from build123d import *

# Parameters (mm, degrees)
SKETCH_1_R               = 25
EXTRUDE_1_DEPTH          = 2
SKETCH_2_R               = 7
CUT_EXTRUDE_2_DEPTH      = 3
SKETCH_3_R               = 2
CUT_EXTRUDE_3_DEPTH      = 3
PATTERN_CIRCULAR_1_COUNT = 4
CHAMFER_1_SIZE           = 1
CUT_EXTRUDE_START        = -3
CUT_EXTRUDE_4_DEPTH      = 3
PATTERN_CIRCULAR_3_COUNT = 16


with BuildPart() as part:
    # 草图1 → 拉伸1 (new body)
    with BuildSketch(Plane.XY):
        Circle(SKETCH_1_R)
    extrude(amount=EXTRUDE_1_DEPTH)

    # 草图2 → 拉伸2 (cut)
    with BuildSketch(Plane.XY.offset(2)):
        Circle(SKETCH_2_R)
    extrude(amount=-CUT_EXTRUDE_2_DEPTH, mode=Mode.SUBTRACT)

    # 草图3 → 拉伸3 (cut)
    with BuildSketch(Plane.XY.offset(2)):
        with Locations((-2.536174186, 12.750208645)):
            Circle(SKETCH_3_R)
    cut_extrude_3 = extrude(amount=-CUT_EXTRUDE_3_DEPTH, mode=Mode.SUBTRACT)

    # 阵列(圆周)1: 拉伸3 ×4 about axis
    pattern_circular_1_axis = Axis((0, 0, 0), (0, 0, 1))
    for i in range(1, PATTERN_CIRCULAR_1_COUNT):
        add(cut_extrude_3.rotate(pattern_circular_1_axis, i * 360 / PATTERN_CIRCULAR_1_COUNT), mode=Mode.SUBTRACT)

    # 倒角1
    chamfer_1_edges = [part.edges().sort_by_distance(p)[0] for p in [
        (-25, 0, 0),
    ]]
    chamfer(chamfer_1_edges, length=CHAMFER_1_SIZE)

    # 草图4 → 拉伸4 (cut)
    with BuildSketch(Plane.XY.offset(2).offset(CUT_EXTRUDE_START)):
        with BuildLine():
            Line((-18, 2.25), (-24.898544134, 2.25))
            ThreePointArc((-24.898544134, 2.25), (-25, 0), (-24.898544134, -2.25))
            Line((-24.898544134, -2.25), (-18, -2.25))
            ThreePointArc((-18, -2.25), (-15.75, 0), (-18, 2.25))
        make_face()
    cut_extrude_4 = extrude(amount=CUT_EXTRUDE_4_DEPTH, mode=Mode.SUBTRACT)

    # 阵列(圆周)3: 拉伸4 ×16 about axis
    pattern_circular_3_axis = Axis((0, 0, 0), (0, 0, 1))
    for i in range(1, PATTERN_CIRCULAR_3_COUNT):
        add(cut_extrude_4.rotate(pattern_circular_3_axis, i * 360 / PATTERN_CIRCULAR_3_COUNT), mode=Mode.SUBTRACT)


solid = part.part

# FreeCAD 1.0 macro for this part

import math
import FreeCAD as App
import Part
import Sketcher


def edges_at(feature, points):
    """Names of the edges that pass closest to the given points."""
    edges = feature.Shape.Edges
    near = lambda p: min(range(len(edges)), key=lambda i: edges[i].distToShape(Part.Vertex(*p))[0])
    return sorted({f"Edge{near(p) + 1}" for p in points})

doc = App.newDocument("Part")
body = doc.addObject("PartDesign::Body", "Body")

sketch1 = body.newObject("Sketcher::SketchObject", "Sketch")
sketch1.AttachmentSupport = (doc.getObject("XY_Plane"), [""])
sketch1.MapMode = "FlatFace"
sketch1.addGeometry(Part.Circle(App.Vector(0, 0, 0), App.Vector(0, 0, 1), 25), False)
sketch1.addConstraint(Sketcher.Constraint("Coincident", 0, 3, -1, 1))
sketch1.addConstraint(Sketcher.Constraint("Diameter", 0, 50.0))
pad1 = body.newObject("PartDesign::Pad", "Pad")
pad1.Profile = sketch1
pad1.Length = 2

sketch2 = body.newObject("Sketcher::SketchObject", "Sketch001")
sketch2.AttachmentSupport = (doc.getObject("XY_Plane"), [""])
sketch2.MapMode = "FlatFace"
sketch2.AttachmentOffset = App.Placement(App.Vector(0, 0, 2), App.Rotation())
sketch2.addGeometry(Part.Circle(App.Vector(0, 0, 0), App.Vector(0, 0, 1), 7), False)
sketch2.addConstraint(Sketcher.Constraint("Coincident", 0, 3, -1, 1))
sketch2.addConstraint(Sketcher.Constraint("Diameter", 0, 14.0))
pocket1 = body.newObject("PartDesign::Pocket", "Pocket")
pocket1.Profile = sketch2
pocket1.Length = 3

sketch3 = body.newObject("Sketcher::SketchObject", "Sketch002")
sketch3.AttachmentSupport = (doc.getObject("XY_Plane"), [""])
sketch3.MapMode = "FlatFace"
sketch3.AttachmentOffset = App.Placement(App.Vector(0, 0, 2), App.Rotation())
sketch3.addGeometry(Part.Circle(App.Vector(-2.5, 12.8, 0), App.Vector(0, 0, 1), 2), False)
sketch3.addConstraint(Sketcher.Constraint("Diameter", 0, 4.0))
sketch3.addConstraint(Sketcher.Constraint("DistanceY", -1, 1, 0, 3, 12.750209))
sketch3.addConstraint(Sketcher.Constraint("DistanceX", 0, 3, -1, 1, 2.536174))
pocket2 = body.newObject("PartDesign::Pocket", "Pocket001")
pocket2.Profile = sketch3
pocket2.Length = 3
doc.recompute()

polarpattern = body.newObject("PartDesign::PolarPattern", "PolarPattern")
polarpattern.Originals = [pocket2]
polarpattern.Axis = (doc.getObject("Z_Axis"), [""])
polarpattern.Angle = 360
polarpattern.Occurrences = 4
body.Tip = polarpattern
doc.recompute()

chamfer = body.newObject("PartDesign::Chamfer", "Chamfer")
chamfer.Base = (polarpattern, edges_at(polarpattern, [(-25, 0, 0)]))
chamfer.Size = 1

sketch4 = body.newObject("Sketcher::SketchObject", "Sketch003")
sketch4.AttachmentSupport = (doc.getObject("XY_Plane"), [""])
sketch4.MapMode = "FlatFace"
sketch4.AttachmentOffset = App.Placement(App.Vector(0, 0, -1), App.Rotation())
sketch4.addGeometry(Part.LineSegment(App.Vector(-18, 2.2, 0), App.Vector(-24.9, 2.2, 0)), False)
sketch4.addGeometry(Part.ArcOfCircle(Part.Circle(App.Vector(0, 0, 0), App.Vector(0, 0, 1), 25), math.radians(174.84), math.radians(185.16)), False)
sketch4.addGeometry(Part.LineSegment(App.Vector(-24.9, -2.2, 0), App.Vector(-18, -2.2, 0)), False)
sketch4.addGeometry(Part.ArcOfCircle(Part.Circle(App.Vector(-18, 0, 0), App.Vector(0, 0, 1), 2.2), math.radians(-90), math.radians(90)), False)
sketch4.addConstraint(Sketcher.Constraint("Coincident", 0, 2, 1, 1))
sketch4.addConstraint(Sketcher.Constraint("Coincident", 1, 2, 2, 1))
sketch4.addConstraint(Sketcher.Constraint("Tangent", 2, 2, 3, 1))
sketch4.addConstraint(Sketcher.Constraint("Tangent", 3, 2, 0, 1))
sketch4.addConstraint(Sketcher.Constraint("Horizontal", 0))
sketch4.addConstraint(Sketcher.Constraint("Horizontal", 2))
sketch4.addConstraint(Sketcher.Constraint("Coincident", 1, 3, -1, 1))
sketch4.addConstraint(Sketcher.Constraint("PointOnObject", 3, 3, -1))
sketch4.addConstraint(Sketcher.Constraint("Radius", 1, 25.0))
sketch4.addConstraint(Sketcher.Constraint("Radius", 3, 2.25))
sketch4.addConstraint(Sketcher.Constraint("DistanceX", 3, 3, -1, 1, 18.0))
pocket3 = body.newObject("PartDesign::Pocket", "Pocket002")
pocket3.Profile = sketch4
pocket3.Length = 3
pocket3.Reversed = True
doc.recompute()

polarpattern2 = body.newObject("PartDesign::PolarPattern", "PolarPattern001")
polarpattern2.Originals = [pocket3]
polarpattern2.Axis = (doc.getObject("Z_Axis"), [""])
polarpattern2.Angle = 360
polarpattern2.Occurrences = 16
body.Tip = polarpattern2

doc.recompute()
